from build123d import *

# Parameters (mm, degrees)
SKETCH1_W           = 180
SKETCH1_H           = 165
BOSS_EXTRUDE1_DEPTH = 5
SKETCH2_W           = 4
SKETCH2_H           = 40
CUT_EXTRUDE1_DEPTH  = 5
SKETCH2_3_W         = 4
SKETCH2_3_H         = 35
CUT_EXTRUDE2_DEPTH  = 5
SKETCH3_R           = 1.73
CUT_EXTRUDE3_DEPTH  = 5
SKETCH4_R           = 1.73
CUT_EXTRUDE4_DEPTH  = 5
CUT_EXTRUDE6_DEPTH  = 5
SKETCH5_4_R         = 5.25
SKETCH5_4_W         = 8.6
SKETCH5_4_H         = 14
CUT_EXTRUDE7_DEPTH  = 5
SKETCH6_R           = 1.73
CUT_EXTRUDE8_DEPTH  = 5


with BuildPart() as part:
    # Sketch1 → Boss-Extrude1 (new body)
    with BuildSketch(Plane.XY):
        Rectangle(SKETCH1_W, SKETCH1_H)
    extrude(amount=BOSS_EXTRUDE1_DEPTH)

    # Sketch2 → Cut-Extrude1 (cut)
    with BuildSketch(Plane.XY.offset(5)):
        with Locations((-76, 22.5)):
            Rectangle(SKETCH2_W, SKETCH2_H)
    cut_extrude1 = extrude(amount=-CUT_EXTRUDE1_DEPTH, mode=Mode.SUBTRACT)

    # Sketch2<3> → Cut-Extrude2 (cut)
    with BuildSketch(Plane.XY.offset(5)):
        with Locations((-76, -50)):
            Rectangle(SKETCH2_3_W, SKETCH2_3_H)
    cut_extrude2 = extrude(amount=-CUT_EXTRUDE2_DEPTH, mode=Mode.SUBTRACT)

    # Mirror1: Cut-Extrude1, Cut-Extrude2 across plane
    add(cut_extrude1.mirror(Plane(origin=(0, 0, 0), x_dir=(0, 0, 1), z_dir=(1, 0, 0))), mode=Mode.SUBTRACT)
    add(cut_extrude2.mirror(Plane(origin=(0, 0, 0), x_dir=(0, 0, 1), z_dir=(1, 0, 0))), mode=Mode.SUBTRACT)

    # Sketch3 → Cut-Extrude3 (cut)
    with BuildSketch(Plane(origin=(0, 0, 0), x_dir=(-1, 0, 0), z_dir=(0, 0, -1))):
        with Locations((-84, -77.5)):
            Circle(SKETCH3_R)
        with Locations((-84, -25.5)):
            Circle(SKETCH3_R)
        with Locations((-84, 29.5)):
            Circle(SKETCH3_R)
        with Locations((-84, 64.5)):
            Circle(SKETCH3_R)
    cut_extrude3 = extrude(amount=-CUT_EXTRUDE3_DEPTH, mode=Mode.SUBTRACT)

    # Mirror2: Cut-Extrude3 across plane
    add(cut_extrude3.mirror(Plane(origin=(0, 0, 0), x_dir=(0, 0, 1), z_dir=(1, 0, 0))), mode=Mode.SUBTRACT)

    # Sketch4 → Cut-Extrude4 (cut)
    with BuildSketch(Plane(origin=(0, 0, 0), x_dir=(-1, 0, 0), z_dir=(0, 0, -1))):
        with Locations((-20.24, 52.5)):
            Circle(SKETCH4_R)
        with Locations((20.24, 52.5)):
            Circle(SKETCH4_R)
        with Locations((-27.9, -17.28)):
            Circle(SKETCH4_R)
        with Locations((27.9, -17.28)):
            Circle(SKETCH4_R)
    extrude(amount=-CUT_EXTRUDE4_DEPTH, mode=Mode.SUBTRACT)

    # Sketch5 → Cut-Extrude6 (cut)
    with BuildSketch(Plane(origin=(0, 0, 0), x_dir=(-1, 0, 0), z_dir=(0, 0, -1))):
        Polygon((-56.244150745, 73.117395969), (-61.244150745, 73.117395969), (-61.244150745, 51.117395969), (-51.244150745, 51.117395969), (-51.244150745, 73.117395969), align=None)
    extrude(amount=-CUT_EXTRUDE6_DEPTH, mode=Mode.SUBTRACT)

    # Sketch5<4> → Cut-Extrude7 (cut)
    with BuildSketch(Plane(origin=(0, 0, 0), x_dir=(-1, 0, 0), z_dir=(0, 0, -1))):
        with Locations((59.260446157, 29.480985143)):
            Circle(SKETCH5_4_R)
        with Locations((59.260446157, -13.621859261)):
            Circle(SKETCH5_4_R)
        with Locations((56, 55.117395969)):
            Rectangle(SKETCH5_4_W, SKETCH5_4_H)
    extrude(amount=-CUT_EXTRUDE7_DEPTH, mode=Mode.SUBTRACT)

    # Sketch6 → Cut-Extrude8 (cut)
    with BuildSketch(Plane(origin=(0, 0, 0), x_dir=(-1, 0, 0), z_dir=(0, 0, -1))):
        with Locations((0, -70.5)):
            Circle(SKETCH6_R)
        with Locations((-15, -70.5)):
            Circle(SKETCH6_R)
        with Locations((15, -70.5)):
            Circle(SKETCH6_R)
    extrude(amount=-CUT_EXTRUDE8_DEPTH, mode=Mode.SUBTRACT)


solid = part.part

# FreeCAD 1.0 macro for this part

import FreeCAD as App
import Part
import Sketcher

V = App.Vector


def add_polygon(sketch, points):
    """Adds a closed chain of lines whose ends are joined by coincident constraints."""
    first, n = sketch.GeometryCount, len(points)
    for a, b in zip(points, points[1:] + points[:1]):
        sketch.addGeometry(Part.LineSegment(App.Vector(*a, 0), App.Vector(*b, 0)), False)
    for i in range(n):
        sketch.addConstraint(Sketcher.Constraint("Coincident", first + i, 2, first + (i + 1) % n, 1))

doc = App.newDocument("Part")
params = doc.addObject("Spreadsheet::Sheet", "Params")
for row, (alias, value) in enumerate([
    ("sketch1_width", "180 mm"),
    ("sketch1_height", "165 mm"),
    ("pad1_length", "5 mm"),
    ("sketch2_width", "4 mm"),
    ("sketch2_height", "40 mm"),
    ("pocket1_length", "5 mm"),
    ("sketch3_width", "4 mm"),
    ("sketch3_height", "35 mm"),
    ("pocket2_length", "5 mm"),
    ("sketch4_diameter", "3.46 mm"),
    ("pocket3_length", "5 mm"),
    ("sketch5_diameter", "3.46 mm"),
    ("pocket4_length", "5 mm"),
    ("sketch6_width", "10 mm"),
    ("sketch6_height", "22 mm"),
    ("pocket5_length", "5 mm"),
    ("sketch7_diameter", "10.5 mm"),
    ("sketch7_height", "14 mm"),
    ("sketch7_width", "8.6 mm"),
    ("pocket6_length", "5 mm"),
    ("sketch8_diameter", "3.46 mm"),
    ("pocket7_length", "5 mm"),
], start=1):
    params.set(f"A{row}", alias)
    params.set(f"B{row}", "=" + value)
    params.setAlias(f"B{row}", alias)

body = doc.addObject("PartDesign::Body", "Body")

# Sketch on XY plane
sketch1 = body.newObject("Sketcher::SketchObject", "Sketch")
sketch1.AttachmentSupport = (doc.getObject("XY_Plane"), [""])
sketch1.MapMode = "FlatFace"
add_polygon(sketch1, [(-90, 82.5), (-90, -82.5), (90, -82.5), (90, 82.5)])  # lines 0-3
sketch1.addConstraint(Sketcher.Constraint("Vertical", 0))
sketch1.addConstraint(Sketcher.Constraint("Horizontal", 1))
sketch1.addConstraint(Sketcher.Constraint("Vertical", 2))
sketch1.addConstraint(Sketcher.Constraint("Horizontal", 3))
sketch1.addConstraint(Sketcher.Constraint("Symmetric", 0, 2, 2, 2, -1, 1))
sketch1.addConstraint(Sketcher.Constraint("DistanceX", 1, 1, 1, 2, 180.0))
sketch1.addConstraint(Sketcher.Constraint("DistanceY", 0, 2, 0, 1, 165.0))
sketch1.setExpression("Constraints[9]", "Params.sketch1_width")
sketch1.setExpression("Constraints[10]", "Params.sketch1_height")
pad1 = body.newObject("PartDesign::Pad", "Pad")
pad1.Profile = sketch1
pad1.setExpression("Length", "Params.pad1_length")

# Sketch on XY plane
sketch2 = body.newObject("Sketcher::SketchObject", "Sketch001")
sketch2.AttachmentSupport = (doc.getObject("XY_Plane"), [""])
sketch2.MapMode = "FlatFace"
sketch2.AttachmentOffset = App.Placement(V(0, 0, 5), App.Rotation())
add_polygon(sketch2, [(-78, 42.5), (-78, 2.5), (-74, 2.5), (-74, 42.5)])  # lines 0-3
sketch2.addConstraint(Sketcher.Constraint("Vertical", 0))
sketch2.addConstraint(Sketcher.Constraint("Horizontal", 1))
sketch2.addConstraint(Sketcher.Constraint("Vertical", 2))
sketch2.addConstraint(Sketcher.Constraint("Horizontal", 3))
sketch2.addConstraint(Sketcher.Constraint("DistanceX", 1, 1, 1, 2, 4.0))
sketch2.addConstraint(Sketcher.Constraint("DistanceY", 0, 2, 0, 1, 40.0))
sketch2.addConstraint(Sketcher.Constraint("DistanceX", 0, 2, -1, 1, 78.0))
sketch2.addConstraint(Sketcher.Constraint("DistanceY", -1, 1, 0, 2, 2.5))
sketch2.setExpression("Constraints[8]", "Params.sketch2_width")
sketch2.setExpression("Constraints[9]", "Params.sketch2_height")
pocket1 = body.newObject("PartDesign::Pocket", "Pocket")
pocket1.Profile = sketch2
pocket1.setExpression("Length", "Params.pocket1_length")

# Sketch on XY plane
sketch3 = body.newObject("Sketcher::SketchObject", "Sketch002")
sketch3.AttachmentSupport = (doc.getObject("XY_Plane"), [""])
sketch3.MapMode = "FlatFace"
sketch3.AttachmentOffset = App.Placement(V(0, 0, 5), App.Rotation())
add_polygon(sketch3, [(-78, -32.5), (-78, -67.5), (-74, -67.5), (-74, -32.5)])  # lines 0-3
sketch3.addConstraint(Sketcher.Constraint("Vertical", 0))
sketch3.addConstraint(Sketcher.Constraint("Horizontal", 1))
sketch3.addConstraint(Sketcher.Constraint("Vertical", 2))
sketch3.addConstraint(Sketcher.Constraint("Horizontal", 3))
sketch3.addConstraint(Sketcher.Constraint("DistanceX", 1, 1, 1, 2, 4.0))
sketch3.addConstraint(Sketcher.Constraint("DistanceY", 0, 2, 0, 1, 35.0))
sketch3.addConstraint(Sketcher.Constraint("DistanceX", 0, 2, -1, 1, 78.0))
sketch3.addConstraint(Sketcher.Constraint("DistanceY", 0, 2, -1, 1, 67.5))
sketch3.setExpression("Constraints[8]", "Params.sketch3_width")
sketch3.setExpression("Constraints[9]", "Params.sketch3_height")
pocket2 = body.newObject("PartDesign::Pocket", "Pocket001")
pocket2.Profile = sketch3
pocket2.setExpression("Length", "Params.pocket2_length")
doc.recompute()

mirrored = body.newObject("PartDesign::Mirrored", "Mirrored")
mirrored.Originals = [pocket1, pocket2]
mirrored.MirrorPlane = (doc.getObject("YZ_Plane"), [""])
body.Tip = mirrored

# Sketch on XY plane
sketch4 = body.newObject("Sketcher::SketchObject", "Sketch003")
sketch4.AttachmentSupport = (doc.getObject("XY_Plane"), [""])
sketch4.MapMode = "FlatFace"
sketch4.addGeometry(Part.Circle(V(84, -77.5, 0), V(0, 0, 1), 1.73), False)
sketch4.addGeometry(Part.Circle(V(84, -25.5, 0), V(0, 0, 1), 1.73), False)
sketch4.addGeometry(Part.Circle(V(84, 29.5, 0), V(0, 0, 1), 1.73), False)
sketch4.addGeometry(Part.Circle(V(84, 64.5, 0), V(0, 0, 1), 1.73), False)
sketch4.addConstraint(Sketcher.Constraint("Equal", 0, 1))
sketch4.addConstraint(Sketcher.Constraint("Equal", 1, 2))
sketch4.addConstraint(Sketcher.Constraint("Equal", 2, 3))
sketch4.addConstraint(Sketcher.Constraint("Vertical", 0, 3, 1, 3))
sketch4.addConstraint(Sketcher.Constraint("Vertical", 1, 3, 2, 3))
sketch4.addConstraint(Sketcher.Constraint("Vertical", 2, 3, 3, 3))
sketch4.addConstraint(Sketcher.Constraint("Diameter", 0, 3.46))
sketch4.addConstraint(Sketcher.Constraint("DistanceX", -1, 1, 0, 3, 84.0))
sketch4.addConstraint(Sketcher.Constraint("DistanceY", 0, 3, 1, 3, 52.0))
sketch4.addConstraint(Sketcher.Constraint("DistanceY", 1, 3, 2, 3, 55.0))
sketch4.addConstraint(Sketcher.Constraint("DistanceY", 2, 3, 3, 3, 35.0))
sketch4.addConstraint(Sketcher.Constraint("DistanceY", 0, 3, -1, 1, 77.5))
sketch4.setExpression("Constraints[6]", "Params.sketch4_diameter")
pocket3 = body.newObject("PartDesign::Pocket", "Pocket002")
pocket3.Profile = sketch4
pocket3.setExpression("Length", "Params.pocket3_length")
pocket3.Reversed = True
doc.recompute()

mirrored2 = body.newObject("PartDesign::Mirrored", "Mirrored001")
mirrored2.Originals = [pocket3]
mirrored2.MirrorPlane = (doc.getObject("YZ_Plane"), [""])
body.Tip = mirrored2

# Sketch on XY plane
sketch5 = body.newObject("Sketcher::SketchObject", "Sketch004")
sketch5.AttachmentSupport = (doc.getObject("XY_Plane"), [""])
sketch5.MapMode = "FlatFace"
sketch5.addGeometry(Part.Circle(V(20.24, 52.5, 0), V(0, 0, 1), 1.73), False)
sketch5.addGeometry(Part.Circle(V(-20.24, 52.5, 0), V(0, 0, 1), 1.73), False)
sketch5.addGeometry(Part.Circle(V(27.9, -17.28, 0), V(0, 0, 1), 1.73), False)
sketch5.addGeometry(Part.Circle(V(-27.9, -17.28, 0), V(0, 0, 1), 1.73), False)
sketch5.addConstraint(Sketcher.Constraint("Equal", 0, 1))
sketch5.addConstraint(Sketcher.Constraint("Equal", 1, 2))
sketch5.addConstraint(Sketcher.Constraint("Equal", 2, 3))
sketch5.addConstraint(Sketcher.Constraint("Symmetric", 0, 3, 1, 3, -2))
sketch5.addConstraint(Sketcher.Constraint("Symmetric", 2, 3, 3, 3, -2))
sketch5.addConstraint(Sketcher.Constraint("Diameter", 0, 3.46))
sketch5.addConstraint(Sketcher.Constraint("DistanceY", -1, 1, 0, 3, 52.5))
sketch5.addConstraint(Sketcher.Constraint("DistanceX", -1, 1, 2, 3, 27.9))
sketch5.addConstraint(Sketcher.Constraint("DistanceX", -1, 1, 0, 3, 20.24))
sketch5.addConstraint(Sketcher.Constraint("DistanceY", 2, 3, -1, 1, 17.28))
sketch5.setExpression("Constraints[5]", "Params.sketch5_diameter")
pocket4 = body.newObject("PartDesign::Pocket", "Pocket003")
pocket4.Profile = sketch5
pocket4.setExpression("Length", "Params.pocket4_length")
pocket4.Reversed = True

# Sketch on XY plane
sketch6 = body.newObject("Sketcher::SketchObject", "Sketch005")
sketch6.AttachmentSupport = (doc.getObject("XY_Plane"), [""])
sketch6.MapMode = "FlatFace"
add_polygon(sketch6, [(61.244151, 73.117396), (61.244151, 51.117396), (51.244151, 51.117396), (51.244151, 73.117396)])  # lines 0-3
sketch6.addConstraint(Sketcher.Constraint("Vertical", 0))
sketch6.addConstraint(Sketcher.Constraint("Horizontal", 1))
sketch6.addConstraint(Sketcher.Constraint("Vertical", 2))
sketch6.addConstraint(Sketcher.Constraint("Horizontal", 3))
sketch6.addConstraint(Sketcher.Constraint("DistanceX", 1, 2, 1, 1, 10.0))
sketch6.addConstraint(Sketcher.Constraint("DistanceY", 0, 2, 0, 1, 22.0))
sketch6.addConstraint(Sketcher.Constraint("DistanceX", -1, 1, 0, 2, 61.244151))
sketch6.addConstraint(Sketcher.Constraint("DistanceY", -1, 1, 0, 2, 51.117396))
sketch6.setExpression("Constraints[8]", "Params.sketch6_width")
sketch6.setExpression("Constraints[9]", "Params.sketch6_height")
pocket5 = body.newObject("PartDesign::Pocket", "Pocket004")
pocket5.Profile = sketch6
pocket5.setExpression("Length", "Params.pocket5_length")
pocket5.Reversed = True

# Sketch on XY plane
sketch7 = body.newObject("Sketcher::SketchObject", "Sketch006")
sketch7.AttachmentSupport = (doc.getObject("XY_Plane"), [""])
sketch7.MapMode = "FlatFace"
sketch7.addGeometry(Part.Circle(V(-59.260446, 29.480985, 0), V(0, 0, 1), 5.25), False)  # 0
sketch7.addGeometry(Part.Circle(V(-59.260446, -13.621859, 0), V(0, 0, 1), 5.25), False)  # 1
add_polygon(sketch7, [(-51.7, 62.117396), (-51.7, 48.117396), (-60.3, 48.117396), (-60.3, 62.117396)])  # lines 2-5
sketch7.addConstraint(Sketcher.Constraint("Vertical", 2))
sketch7.addConstraint(Sketcher.Constraint("Horizontal", 3))
sketch7.addConstraint(Sketcher.Constraint("Vertical", 4))
sketch7.addConstraint(Sketcher.Constraint("Horizontal", 5))
sketch7.addConstraint(Sketcher.Constraint("Equal", 0, 1))
sketch7.addConstraint(Sketcher.Constraint("Vertical", 0, 3, 1, 3))
sketch7.addConstraint(Sketcher.Constraint("Diameter", 0, 10.5))
sketch7.addConstraint(Sketcher.Constraint("DistanceY", 2, 2, 2, 1, 14.0))
sketch7.addConstraint(Sketcher.Constraint("DistanceX", 3, 2, 3, 1, 8.6))
sketch7.addConstraint(Sketcher.Constraint("DistanceX", 2, 2, -1, 1, 51.7))
sketch7.addConstraint(Sketcher.Constraint("DistanceY", 1, 3, -1, 1, 13.621859))
sketch7.addConstraint(Sketcher.Constraint("DistanceY", 0, 3, 2, 2, 18.636411))
sketch7.addConstraint(Sketcher.Constraint("DistanceX", 0, 3, -1, 1, 59.260446))
sketch7.addConstraint(Sketcher.Constraint("DistanceY", -1, 1, 0, 3, 29.480985))
sketch7.setExpression("Constraints[10]", "Params.sketch7_diameter")
sketch7.setExpression("Constraints[11]", "Params.sketch7_height")
sketch7.setExpression("Constraints[12]", "Params.sketch7_width")
pocket6 = body.newObject("PartDesign::Pocket", "Pocket005")
pocket6.Profile = sketch7
pocket6.setExpression("Length", "Params.pocket6_length")
pocket6.Reversed = True

# Sketch on XY plane
sketch8 = body.newObject("Sketcher::SketchObject", "Sketch007")
sketch8.AttachmentSupport = (doc.getObject("XY_Plane"), [""])
sketch8.MapMode = "FlatFace"
sketch8.addGeometry(Part.Circle(V(0, -70.5, 0), V(0, 0, 1), 1.73), False)
sketch8.addGeometry(Part.Circle(V(15, -70.5, 0), V(0, 0, 1), 1.73), False)
sketch8.addGeometry(Part.Circle(V(-15, -70.5, 0), V(0, 0, 1), 1.73), False)
sketch8.addConstraint(Sketcher.Constraint("Equal", 0, 1))
sketch8.addConstraint(Sketcher.Constraint("Equal", 1, 2))
sketch8.addConstraint(Sketcher.Constraint("Symmetric", 1, 3, 2, 3, -2))
sketch8.addConstraint(Sketcher.Constraint("PointOnObject", 0, 3, -2))
sketch8.addConstraint(Sketcher.Constraint("Horizontal", 0, 3, 1, 3))
sketch8.addConstraint(Sketcher.Constraint("Diameter", 0, 3.46))
sketch8.addConstraint(Sketcher.Constraint("DistanceX", -1, 1, 1, 3, 15.0))
sketch8.addConstraint(Sketcher.Constraint("DistanceY", 0, 3, -1, 1, 70.5))
sketch8.setExpression("Constraints[5]", "Params.sketch8_diameter")
pocket7 = body.newObject("PartDesign::Pocket", "Pocket006")
pocket7.Profile = sketch8
pocket7.setExpression("Length", "Params.pocket7_length")
pocket7.Reversed = True

doc.recompute()
